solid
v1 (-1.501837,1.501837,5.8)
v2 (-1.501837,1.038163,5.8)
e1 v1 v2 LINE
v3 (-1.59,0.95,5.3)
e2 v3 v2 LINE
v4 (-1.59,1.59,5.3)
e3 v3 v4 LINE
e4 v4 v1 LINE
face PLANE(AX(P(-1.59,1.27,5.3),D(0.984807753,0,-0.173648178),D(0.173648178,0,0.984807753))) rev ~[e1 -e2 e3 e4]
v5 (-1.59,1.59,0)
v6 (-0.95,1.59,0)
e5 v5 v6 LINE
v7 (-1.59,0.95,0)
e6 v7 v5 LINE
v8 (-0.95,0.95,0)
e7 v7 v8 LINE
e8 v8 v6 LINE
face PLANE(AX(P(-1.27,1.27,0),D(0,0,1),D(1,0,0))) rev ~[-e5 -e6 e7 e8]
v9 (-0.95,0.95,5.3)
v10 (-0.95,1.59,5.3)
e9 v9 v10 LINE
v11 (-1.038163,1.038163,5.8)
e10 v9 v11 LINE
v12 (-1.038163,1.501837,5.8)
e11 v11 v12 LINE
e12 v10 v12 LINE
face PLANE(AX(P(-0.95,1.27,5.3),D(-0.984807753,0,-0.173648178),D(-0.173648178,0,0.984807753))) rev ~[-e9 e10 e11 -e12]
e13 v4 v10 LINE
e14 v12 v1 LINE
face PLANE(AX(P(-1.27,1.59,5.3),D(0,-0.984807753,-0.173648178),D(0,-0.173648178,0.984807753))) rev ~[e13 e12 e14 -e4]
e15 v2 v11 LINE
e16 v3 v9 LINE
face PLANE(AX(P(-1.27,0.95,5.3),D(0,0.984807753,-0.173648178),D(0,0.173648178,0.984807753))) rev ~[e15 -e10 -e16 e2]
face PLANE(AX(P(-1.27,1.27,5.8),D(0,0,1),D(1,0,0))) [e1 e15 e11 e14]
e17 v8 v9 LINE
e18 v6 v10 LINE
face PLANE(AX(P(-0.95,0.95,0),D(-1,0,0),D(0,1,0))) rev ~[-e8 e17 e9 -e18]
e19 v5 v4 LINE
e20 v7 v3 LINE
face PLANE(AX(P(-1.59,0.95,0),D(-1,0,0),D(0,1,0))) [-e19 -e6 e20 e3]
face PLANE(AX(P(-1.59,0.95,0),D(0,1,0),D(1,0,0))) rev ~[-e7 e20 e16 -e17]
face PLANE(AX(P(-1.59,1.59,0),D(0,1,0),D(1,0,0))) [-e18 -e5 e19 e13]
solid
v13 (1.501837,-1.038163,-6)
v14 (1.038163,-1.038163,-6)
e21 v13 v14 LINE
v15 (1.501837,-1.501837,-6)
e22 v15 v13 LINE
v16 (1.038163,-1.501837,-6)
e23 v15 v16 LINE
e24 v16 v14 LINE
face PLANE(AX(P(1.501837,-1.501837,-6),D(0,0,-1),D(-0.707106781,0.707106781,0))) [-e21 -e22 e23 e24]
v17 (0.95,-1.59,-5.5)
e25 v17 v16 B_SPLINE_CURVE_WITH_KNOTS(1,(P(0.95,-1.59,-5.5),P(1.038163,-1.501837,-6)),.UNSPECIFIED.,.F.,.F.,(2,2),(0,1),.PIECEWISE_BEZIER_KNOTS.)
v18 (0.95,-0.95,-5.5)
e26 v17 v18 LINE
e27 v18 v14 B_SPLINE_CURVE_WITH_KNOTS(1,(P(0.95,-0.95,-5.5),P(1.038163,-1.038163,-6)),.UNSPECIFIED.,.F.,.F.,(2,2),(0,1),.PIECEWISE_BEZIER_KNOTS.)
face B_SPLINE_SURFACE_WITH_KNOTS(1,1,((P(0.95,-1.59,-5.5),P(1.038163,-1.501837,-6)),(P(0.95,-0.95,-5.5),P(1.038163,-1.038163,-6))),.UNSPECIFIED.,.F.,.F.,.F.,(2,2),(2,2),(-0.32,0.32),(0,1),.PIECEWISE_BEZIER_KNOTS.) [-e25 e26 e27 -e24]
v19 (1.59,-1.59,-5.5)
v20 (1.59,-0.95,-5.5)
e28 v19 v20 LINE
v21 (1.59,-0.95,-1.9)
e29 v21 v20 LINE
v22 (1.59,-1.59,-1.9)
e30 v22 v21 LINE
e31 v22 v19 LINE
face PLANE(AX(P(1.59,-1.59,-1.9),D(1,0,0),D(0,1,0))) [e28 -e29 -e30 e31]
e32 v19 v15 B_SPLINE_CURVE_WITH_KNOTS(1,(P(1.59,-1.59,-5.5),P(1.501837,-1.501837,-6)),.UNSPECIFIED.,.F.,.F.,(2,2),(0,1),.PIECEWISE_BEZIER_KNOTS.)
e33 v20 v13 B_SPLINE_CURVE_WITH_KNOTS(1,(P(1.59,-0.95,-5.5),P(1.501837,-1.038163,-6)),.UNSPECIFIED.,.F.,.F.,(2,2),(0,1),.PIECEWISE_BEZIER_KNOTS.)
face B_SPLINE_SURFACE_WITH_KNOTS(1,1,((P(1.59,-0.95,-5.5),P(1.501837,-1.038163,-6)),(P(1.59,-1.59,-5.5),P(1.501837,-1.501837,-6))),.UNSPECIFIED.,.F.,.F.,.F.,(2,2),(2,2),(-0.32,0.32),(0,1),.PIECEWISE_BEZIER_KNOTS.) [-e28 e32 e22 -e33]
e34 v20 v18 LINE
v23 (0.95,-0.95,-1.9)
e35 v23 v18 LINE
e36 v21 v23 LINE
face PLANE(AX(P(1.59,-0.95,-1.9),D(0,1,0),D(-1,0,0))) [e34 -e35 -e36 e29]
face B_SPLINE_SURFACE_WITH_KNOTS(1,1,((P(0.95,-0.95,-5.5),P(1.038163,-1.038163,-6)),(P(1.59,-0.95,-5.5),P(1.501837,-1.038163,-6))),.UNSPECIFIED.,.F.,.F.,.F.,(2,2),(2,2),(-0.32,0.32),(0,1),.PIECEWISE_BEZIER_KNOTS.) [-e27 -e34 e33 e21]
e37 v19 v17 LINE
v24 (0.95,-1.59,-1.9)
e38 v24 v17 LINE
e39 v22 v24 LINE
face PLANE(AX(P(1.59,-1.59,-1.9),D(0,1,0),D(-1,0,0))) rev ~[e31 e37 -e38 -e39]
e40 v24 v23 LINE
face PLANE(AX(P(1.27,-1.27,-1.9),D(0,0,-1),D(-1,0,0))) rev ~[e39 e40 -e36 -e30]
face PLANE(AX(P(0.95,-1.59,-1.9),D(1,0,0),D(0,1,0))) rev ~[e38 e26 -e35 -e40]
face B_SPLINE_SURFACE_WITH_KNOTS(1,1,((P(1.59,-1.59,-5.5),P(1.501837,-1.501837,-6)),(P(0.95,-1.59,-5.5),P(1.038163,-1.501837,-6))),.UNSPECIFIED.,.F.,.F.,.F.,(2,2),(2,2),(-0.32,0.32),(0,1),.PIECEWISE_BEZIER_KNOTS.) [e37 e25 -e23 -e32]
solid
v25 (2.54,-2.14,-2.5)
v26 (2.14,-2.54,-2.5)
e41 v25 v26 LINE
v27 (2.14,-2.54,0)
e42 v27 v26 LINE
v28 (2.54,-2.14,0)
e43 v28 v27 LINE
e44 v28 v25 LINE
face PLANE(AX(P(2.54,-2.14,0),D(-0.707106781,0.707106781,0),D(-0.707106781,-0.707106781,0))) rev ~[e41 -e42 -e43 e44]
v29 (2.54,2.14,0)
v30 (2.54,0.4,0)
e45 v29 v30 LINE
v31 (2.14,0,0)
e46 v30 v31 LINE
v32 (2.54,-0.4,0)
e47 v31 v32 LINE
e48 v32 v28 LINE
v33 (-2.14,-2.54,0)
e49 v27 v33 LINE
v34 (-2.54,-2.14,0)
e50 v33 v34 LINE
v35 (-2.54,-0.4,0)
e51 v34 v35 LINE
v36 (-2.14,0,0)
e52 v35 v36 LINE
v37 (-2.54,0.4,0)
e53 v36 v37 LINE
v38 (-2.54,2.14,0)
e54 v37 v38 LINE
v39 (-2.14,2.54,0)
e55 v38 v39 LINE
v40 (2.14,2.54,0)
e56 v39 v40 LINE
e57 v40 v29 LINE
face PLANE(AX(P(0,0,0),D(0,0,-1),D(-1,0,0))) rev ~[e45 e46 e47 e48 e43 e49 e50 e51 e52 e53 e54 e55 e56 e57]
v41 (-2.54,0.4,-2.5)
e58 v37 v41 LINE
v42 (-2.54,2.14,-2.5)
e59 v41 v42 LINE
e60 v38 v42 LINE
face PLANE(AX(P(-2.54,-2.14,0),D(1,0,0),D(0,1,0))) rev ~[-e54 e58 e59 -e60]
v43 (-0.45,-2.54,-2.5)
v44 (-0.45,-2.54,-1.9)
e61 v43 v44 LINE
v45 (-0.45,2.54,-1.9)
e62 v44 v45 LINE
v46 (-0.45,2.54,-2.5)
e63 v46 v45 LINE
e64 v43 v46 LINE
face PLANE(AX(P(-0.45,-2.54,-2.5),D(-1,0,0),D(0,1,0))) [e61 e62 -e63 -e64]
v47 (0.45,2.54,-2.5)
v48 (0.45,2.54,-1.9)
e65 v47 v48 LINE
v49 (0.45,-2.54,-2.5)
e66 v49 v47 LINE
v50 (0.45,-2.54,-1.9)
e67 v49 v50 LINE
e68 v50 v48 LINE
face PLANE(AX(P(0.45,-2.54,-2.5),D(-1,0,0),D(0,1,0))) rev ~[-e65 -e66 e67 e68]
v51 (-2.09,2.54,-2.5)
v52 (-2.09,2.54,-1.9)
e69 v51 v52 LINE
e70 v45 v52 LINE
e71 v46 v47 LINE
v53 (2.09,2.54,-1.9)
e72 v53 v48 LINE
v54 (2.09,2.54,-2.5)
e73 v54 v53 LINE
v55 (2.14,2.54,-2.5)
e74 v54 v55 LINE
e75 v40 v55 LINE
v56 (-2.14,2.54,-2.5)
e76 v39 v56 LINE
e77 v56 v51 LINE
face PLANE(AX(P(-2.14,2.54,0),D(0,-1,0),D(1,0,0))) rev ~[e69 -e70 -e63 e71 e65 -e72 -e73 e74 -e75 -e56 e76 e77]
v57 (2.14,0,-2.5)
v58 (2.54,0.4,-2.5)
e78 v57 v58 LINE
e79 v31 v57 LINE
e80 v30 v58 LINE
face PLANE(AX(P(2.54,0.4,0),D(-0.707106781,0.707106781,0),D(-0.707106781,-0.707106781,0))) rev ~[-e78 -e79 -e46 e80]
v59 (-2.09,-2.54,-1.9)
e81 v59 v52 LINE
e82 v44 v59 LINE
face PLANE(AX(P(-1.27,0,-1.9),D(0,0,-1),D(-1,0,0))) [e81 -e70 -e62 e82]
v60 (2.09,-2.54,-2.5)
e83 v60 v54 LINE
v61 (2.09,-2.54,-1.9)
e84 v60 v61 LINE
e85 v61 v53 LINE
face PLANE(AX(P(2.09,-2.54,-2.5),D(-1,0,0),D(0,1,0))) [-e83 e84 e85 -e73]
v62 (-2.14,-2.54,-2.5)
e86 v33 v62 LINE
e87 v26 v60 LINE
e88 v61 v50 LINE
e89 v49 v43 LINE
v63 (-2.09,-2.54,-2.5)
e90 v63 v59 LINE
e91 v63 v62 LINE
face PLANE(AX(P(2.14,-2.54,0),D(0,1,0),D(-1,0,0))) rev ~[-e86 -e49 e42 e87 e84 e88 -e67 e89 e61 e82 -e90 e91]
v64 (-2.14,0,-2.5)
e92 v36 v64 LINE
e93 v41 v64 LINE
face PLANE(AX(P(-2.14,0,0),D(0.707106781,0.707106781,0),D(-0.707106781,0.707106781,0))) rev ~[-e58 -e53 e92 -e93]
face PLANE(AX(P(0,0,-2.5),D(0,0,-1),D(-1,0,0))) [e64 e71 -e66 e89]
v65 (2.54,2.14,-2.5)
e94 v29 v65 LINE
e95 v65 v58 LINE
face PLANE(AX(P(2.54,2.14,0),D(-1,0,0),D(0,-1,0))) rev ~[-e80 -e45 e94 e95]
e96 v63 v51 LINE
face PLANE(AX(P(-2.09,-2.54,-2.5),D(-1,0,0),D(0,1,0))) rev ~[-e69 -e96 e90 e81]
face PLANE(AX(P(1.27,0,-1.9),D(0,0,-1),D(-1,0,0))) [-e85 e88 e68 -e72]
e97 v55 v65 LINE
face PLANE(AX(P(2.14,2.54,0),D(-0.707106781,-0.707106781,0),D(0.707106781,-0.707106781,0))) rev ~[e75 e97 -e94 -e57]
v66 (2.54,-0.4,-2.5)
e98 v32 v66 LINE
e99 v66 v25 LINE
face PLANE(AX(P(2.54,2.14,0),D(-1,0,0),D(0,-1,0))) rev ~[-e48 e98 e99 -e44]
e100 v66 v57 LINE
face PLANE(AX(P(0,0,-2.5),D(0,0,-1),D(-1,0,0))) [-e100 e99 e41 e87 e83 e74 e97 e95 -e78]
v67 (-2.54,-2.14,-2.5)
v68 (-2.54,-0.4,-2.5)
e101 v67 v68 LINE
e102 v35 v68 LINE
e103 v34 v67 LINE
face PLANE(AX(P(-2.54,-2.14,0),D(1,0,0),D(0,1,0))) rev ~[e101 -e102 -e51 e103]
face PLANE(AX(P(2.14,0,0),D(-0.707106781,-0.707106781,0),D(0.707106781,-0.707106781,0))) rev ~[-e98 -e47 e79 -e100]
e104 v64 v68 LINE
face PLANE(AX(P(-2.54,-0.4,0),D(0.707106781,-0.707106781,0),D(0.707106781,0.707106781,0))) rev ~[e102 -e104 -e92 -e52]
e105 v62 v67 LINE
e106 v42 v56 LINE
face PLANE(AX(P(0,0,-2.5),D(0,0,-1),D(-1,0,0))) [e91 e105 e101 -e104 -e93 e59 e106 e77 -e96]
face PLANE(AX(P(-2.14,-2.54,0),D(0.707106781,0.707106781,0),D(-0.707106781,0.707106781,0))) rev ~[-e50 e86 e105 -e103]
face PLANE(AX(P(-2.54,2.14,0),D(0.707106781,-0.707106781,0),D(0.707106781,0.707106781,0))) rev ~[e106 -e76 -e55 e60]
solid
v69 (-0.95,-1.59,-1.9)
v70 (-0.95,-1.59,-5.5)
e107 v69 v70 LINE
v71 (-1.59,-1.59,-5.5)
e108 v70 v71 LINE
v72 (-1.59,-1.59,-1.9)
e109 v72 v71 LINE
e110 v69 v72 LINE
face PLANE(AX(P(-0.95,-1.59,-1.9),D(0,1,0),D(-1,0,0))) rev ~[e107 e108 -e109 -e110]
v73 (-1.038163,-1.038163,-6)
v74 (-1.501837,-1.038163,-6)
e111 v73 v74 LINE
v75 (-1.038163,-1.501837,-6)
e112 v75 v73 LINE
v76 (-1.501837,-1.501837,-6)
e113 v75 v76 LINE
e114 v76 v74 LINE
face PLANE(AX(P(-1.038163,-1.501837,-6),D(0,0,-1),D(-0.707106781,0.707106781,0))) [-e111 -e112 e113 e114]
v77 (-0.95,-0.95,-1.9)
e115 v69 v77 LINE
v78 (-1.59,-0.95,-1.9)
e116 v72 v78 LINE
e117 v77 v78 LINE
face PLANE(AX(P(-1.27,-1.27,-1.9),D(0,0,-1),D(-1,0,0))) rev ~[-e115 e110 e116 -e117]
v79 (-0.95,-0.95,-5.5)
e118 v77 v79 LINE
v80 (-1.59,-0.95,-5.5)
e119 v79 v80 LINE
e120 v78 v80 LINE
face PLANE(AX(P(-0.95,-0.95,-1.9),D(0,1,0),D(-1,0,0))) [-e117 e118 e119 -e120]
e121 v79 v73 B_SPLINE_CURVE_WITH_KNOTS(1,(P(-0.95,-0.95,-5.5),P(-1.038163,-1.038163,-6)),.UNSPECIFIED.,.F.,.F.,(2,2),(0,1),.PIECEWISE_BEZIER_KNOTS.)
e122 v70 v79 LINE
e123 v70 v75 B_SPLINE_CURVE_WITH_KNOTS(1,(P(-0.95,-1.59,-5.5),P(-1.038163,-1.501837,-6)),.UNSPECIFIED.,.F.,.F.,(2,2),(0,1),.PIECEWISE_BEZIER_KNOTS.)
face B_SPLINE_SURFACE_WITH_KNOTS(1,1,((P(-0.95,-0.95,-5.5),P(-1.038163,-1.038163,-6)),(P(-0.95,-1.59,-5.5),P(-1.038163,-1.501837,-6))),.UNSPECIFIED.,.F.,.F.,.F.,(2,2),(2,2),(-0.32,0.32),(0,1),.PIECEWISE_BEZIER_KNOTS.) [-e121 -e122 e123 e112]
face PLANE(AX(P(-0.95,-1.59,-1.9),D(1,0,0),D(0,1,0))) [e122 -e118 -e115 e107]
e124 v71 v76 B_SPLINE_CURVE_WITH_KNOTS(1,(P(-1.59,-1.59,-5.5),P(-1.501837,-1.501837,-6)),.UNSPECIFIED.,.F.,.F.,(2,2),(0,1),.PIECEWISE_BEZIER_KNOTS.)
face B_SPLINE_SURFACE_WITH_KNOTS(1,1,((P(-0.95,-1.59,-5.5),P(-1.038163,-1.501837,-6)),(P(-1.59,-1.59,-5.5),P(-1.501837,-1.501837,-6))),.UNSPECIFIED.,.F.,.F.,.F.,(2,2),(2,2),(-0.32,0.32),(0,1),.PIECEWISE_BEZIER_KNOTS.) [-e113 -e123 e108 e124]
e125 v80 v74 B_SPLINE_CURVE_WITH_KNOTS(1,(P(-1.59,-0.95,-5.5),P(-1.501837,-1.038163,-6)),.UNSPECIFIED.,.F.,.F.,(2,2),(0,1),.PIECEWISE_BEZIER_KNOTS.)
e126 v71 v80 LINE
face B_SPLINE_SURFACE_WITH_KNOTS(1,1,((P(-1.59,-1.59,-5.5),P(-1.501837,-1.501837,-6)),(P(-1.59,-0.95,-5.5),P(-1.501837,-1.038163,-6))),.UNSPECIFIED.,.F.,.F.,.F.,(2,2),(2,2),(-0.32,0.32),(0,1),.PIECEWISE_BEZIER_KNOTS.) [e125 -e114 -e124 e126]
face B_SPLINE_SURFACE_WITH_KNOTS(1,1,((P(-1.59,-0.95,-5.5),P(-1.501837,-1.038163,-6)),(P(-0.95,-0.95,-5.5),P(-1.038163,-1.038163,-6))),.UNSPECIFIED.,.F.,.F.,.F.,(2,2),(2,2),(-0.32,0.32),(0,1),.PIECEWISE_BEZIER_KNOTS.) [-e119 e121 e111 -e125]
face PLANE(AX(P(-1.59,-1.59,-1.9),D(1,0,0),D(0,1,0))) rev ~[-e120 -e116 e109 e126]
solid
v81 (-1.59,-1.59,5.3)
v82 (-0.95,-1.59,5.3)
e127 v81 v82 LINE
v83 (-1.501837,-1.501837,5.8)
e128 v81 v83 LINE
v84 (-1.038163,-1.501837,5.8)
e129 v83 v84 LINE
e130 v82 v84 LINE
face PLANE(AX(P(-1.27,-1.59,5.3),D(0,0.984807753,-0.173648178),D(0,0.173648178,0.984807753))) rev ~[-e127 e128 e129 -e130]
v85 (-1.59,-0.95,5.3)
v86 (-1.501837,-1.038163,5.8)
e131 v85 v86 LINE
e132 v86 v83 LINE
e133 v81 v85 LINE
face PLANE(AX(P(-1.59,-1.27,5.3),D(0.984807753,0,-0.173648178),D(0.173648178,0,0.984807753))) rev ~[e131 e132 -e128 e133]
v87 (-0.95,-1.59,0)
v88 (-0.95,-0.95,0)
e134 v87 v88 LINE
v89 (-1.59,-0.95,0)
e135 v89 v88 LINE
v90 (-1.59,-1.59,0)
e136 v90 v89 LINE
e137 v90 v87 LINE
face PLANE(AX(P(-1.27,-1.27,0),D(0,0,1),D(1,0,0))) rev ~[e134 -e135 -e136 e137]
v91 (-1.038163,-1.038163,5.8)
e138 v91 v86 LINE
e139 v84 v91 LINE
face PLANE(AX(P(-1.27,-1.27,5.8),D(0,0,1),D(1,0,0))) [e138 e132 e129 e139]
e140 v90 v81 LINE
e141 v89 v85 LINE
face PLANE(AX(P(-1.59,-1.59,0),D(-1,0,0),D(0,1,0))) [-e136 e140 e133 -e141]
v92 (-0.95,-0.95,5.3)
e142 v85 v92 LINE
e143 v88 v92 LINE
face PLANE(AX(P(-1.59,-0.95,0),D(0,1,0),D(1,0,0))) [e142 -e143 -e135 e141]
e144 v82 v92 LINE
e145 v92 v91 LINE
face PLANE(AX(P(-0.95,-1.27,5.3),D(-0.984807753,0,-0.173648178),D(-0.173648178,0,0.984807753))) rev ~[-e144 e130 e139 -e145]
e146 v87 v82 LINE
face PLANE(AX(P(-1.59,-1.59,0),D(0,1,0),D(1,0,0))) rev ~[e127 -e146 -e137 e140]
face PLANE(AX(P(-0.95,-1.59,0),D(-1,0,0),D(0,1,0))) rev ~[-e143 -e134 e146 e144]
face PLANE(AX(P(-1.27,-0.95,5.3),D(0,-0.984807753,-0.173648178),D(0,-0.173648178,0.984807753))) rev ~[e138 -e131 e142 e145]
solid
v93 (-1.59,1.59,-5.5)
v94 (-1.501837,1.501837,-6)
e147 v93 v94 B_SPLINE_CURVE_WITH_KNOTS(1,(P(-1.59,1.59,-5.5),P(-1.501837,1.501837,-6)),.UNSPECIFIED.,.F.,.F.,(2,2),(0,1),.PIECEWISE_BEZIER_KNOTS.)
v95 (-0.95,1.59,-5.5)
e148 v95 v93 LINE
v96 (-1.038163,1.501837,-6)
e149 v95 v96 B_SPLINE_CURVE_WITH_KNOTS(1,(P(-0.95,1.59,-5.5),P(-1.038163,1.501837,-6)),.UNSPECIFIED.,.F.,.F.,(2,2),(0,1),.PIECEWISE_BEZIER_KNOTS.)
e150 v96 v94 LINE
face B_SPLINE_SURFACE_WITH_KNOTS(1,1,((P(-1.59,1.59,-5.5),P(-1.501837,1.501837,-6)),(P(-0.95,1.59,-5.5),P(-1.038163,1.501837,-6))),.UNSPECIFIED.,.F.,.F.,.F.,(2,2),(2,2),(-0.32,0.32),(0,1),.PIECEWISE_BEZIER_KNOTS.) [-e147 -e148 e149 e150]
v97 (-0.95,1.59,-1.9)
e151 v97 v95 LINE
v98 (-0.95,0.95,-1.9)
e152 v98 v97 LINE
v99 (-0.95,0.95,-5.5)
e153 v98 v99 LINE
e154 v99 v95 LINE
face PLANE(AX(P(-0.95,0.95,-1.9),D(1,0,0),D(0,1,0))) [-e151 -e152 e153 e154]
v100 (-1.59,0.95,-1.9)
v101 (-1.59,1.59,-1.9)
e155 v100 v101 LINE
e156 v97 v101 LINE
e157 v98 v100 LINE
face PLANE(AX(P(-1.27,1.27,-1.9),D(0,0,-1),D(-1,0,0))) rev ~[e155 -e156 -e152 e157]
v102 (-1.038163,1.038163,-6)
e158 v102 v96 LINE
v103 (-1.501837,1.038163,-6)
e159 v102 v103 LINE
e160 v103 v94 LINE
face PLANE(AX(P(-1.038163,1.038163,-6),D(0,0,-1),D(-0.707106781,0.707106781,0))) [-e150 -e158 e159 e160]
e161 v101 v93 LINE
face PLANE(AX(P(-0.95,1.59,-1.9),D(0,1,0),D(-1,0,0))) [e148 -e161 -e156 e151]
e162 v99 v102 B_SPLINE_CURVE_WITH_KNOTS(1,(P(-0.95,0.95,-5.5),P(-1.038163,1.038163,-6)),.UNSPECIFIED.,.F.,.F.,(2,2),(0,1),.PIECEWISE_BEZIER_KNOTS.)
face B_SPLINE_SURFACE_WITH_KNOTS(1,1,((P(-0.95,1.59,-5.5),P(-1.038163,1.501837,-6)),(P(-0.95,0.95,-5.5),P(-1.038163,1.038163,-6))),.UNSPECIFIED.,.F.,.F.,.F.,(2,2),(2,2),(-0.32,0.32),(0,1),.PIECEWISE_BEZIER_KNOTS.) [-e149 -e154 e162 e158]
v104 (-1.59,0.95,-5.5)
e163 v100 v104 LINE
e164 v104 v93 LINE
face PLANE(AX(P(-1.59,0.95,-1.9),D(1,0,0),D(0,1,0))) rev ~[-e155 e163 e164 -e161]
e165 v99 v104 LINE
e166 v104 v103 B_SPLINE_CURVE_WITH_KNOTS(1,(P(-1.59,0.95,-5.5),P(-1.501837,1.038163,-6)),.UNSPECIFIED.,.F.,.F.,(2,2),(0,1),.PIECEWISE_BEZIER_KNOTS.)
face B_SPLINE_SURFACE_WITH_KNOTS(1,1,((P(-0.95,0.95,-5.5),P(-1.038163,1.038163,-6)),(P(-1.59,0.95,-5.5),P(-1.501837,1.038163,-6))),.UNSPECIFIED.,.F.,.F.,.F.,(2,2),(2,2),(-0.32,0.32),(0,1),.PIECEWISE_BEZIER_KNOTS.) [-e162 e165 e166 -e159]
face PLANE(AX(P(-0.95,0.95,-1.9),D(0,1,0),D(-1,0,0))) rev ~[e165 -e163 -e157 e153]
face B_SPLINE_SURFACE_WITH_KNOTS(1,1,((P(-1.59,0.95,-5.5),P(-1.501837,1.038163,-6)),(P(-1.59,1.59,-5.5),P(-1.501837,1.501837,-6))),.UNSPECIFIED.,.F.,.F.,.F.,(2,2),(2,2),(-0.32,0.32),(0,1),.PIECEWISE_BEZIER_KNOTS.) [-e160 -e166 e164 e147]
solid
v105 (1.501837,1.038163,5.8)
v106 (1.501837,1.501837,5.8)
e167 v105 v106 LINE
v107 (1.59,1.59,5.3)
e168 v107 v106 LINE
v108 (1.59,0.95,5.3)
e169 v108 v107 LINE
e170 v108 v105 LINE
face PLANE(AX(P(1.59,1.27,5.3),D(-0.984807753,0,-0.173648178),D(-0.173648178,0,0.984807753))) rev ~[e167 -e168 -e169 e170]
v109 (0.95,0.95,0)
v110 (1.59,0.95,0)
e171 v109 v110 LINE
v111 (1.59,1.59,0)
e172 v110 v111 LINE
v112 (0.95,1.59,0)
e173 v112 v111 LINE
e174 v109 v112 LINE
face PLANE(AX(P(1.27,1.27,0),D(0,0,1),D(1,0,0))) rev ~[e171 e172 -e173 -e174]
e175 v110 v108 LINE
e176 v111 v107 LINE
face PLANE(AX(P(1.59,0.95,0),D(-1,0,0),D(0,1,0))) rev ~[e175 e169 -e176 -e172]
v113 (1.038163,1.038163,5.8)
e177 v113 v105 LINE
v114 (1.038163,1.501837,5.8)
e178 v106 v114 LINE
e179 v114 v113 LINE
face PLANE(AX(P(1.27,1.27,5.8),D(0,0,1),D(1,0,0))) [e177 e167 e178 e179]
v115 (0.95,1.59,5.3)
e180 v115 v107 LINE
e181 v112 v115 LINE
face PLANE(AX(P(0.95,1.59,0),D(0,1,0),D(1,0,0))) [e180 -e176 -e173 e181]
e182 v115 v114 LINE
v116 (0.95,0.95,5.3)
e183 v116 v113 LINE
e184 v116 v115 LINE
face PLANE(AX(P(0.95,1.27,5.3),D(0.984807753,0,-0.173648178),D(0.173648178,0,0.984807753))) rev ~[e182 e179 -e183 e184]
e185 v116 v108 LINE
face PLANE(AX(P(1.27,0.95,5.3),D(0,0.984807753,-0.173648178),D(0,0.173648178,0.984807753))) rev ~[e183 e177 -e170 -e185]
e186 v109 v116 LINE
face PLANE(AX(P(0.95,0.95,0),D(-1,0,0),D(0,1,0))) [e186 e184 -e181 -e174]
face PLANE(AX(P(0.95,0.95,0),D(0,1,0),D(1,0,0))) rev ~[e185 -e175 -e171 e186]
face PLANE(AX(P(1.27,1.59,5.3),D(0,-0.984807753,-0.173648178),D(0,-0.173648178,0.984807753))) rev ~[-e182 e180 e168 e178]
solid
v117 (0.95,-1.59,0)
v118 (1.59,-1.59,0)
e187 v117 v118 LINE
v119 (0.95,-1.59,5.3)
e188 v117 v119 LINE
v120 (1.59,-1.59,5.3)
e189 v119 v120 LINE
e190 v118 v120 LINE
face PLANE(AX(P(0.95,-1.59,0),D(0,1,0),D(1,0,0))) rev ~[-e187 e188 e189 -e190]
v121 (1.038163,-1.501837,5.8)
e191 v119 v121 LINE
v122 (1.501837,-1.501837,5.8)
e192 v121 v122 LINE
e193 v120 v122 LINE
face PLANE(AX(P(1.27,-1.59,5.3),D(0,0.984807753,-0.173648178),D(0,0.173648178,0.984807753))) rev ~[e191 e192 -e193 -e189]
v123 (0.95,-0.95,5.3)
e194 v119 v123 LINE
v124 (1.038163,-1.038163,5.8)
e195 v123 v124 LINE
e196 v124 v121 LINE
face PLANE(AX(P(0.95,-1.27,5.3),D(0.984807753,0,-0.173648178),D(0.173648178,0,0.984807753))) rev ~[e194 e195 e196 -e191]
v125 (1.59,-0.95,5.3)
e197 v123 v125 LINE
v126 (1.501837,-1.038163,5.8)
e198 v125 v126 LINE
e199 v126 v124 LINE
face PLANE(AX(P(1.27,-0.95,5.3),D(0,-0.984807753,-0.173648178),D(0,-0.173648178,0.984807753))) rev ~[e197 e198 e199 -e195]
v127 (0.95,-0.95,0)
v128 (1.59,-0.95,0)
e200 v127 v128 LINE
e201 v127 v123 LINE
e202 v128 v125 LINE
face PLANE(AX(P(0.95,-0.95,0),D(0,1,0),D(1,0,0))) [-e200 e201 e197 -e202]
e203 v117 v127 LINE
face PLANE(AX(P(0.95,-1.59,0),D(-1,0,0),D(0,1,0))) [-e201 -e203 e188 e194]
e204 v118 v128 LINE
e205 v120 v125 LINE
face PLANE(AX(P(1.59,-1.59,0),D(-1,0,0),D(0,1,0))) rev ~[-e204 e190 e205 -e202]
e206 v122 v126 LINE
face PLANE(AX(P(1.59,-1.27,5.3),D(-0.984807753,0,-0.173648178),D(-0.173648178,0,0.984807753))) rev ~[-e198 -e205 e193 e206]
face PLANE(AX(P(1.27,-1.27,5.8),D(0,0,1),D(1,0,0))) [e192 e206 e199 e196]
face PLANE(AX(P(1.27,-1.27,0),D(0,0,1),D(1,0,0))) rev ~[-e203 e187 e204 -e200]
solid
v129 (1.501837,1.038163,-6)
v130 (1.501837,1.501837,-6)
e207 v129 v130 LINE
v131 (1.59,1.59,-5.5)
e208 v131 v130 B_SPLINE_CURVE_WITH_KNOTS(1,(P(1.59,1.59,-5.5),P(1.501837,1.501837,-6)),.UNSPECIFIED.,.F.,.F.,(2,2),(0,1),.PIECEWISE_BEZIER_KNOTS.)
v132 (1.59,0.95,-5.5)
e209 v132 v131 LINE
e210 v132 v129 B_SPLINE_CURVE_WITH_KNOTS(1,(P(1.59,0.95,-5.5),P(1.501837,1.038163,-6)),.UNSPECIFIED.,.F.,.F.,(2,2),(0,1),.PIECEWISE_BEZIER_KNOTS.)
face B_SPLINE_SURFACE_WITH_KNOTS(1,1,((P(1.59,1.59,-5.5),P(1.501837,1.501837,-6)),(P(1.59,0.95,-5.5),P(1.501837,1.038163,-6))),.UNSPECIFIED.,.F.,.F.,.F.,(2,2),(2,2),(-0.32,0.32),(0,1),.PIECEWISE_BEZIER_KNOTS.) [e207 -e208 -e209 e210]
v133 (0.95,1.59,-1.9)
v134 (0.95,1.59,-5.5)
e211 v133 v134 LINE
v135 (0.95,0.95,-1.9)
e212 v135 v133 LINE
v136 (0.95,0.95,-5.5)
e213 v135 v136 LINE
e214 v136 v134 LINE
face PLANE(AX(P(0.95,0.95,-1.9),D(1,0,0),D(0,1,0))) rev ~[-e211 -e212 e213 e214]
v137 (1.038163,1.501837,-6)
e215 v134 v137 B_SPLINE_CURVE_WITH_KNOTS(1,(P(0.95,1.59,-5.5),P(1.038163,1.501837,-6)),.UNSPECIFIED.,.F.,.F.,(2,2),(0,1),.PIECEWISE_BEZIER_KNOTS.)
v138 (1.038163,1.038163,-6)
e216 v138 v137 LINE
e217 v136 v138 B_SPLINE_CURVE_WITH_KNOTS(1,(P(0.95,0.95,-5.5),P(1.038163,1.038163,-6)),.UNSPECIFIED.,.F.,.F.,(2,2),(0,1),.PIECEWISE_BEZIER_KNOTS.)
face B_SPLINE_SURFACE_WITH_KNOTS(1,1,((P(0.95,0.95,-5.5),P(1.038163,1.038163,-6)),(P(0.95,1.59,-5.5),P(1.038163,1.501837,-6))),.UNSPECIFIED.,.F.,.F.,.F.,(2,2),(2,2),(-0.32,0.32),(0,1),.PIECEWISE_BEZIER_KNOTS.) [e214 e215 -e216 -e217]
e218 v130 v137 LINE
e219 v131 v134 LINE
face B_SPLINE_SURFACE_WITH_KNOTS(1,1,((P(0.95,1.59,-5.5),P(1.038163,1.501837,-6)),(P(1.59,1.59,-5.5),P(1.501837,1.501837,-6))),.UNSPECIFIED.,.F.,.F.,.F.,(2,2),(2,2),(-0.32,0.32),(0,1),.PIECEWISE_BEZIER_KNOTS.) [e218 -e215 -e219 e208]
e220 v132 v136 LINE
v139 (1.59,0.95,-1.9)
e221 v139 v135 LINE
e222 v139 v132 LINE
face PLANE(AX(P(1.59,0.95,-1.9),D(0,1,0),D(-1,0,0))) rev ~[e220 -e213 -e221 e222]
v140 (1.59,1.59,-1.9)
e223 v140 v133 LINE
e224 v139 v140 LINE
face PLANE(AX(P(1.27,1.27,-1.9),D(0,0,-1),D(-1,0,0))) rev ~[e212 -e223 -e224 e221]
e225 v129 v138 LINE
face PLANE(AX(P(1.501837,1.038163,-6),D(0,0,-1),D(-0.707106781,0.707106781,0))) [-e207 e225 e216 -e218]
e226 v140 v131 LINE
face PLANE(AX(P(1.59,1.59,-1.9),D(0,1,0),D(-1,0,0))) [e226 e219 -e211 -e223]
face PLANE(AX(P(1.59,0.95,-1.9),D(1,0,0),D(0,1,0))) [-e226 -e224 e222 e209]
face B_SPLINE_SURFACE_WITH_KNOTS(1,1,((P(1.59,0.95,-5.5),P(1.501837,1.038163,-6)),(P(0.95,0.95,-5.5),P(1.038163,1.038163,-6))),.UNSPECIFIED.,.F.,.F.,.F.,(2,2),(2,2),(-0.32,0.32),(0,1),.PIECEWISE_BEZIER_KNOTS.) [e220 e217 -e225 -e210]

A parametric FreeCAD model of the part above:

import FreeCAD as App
import Part
import Sketcher
from FreeCAD import Vector

doc = App.newDocument("Part")
body = doc.addObject("PartDesign::Body", "Body")

# Sketch on XY plane
sketch1 = body.newObject("Sketcher::SketchObject", "Sketch")
sketch1.AttachmentSupport = (doc.getObject("XY_Plane"), [""])
sketch1.MapMode = "FlatFace"
sketch1.addGeometry([
    Part.LineSegment(Vector(-1.6, 1.6, 0), Vector(-1.6, 0.9, 0)),
    Part.LineSegment(Vector(-1.6, 0.9, 0), Vector(-0.9, 0.9, 0)),
    Part.LineSegment(Vector(-0.9, 0.9, 0), Vector(-0.9, 1.6, 0)),
    Part.LineSegment(Vector(-0.9, 1.6, 0), Vector(-1.6, 1.6, 0)),
], False)
sketch1.addConstraint([
    Sketcher.Constraint("Coincident", 0, 2, 1, 1),
    Sketcher.Constraint("Coincident", 1, 2, 2, 1),
    Sketcher.Constraint("Coincident", 2, 2, 3, 1),
    Sketcher.Constraint("Coincident", 3, 2, 0, 1),
    Sketcher.Constraint("Vertical", 0),
    Sketcher.Constraint("Horizontal", 1),
    Sketcher.Constraint("Vertical", 2),
    Sketcher.Constraint("Horizontal", 3),
    Sketcher.Constraint("Equal", 3, 0),
    Sketcher.Constraint("DistanceX", 1, 1, 1, 2, 0.64),
    Sketcher.Constraint("DistanceX", 0, 2, -1, 1, 1.59),
    Sketcher.Constraint("DistanceY", -1, 1, 0, 2, 0.95),
])
pad1 = body.newObject("PartDesign::Pad", "Pad")
pad1.Profile = sketch1
pad1.Length = 5.3
body2 = doc.addObject("PartDesign::Body", "Body001")

# Sketch on XY plane
sketch2 = body2.newObject("Sketcher::SketchObject", "Sketch001")
sketch2.AttachmentSupport = (doc.getObject("XY_Plane001"), [""])
sketch2.MapMode = "FlatFace"
sketch2.addGeometry([
    Part.LineSegment(Vector(-1.6, -0.9, 0), Vector(-1.6, -1.6, 0)),
    Part.LineSegment(Vector(-1.6, -1.6, 0), Vector(-0.9, -1.6, 0)),
    Part.LineSegment(Vector(-0.9, -1.6, 0), Vector(-0.9, -0.9, 0)),
    Part.LineSegment(Vector(-0.9, -0.9, 0), Vector(-1.6, -0.9, 0)),
], False)
sketch2.addConstraint([
    Sketcher.Constraint("Coincident", 0, 2, 1, 1),
    Sketcher.Constraint("Coincident", 1, 2, 2, 1),
    Sketcher.Constraint("Coincident", 2, 2, 3, 1),
    Sketcher.Constraint("Coincident", 3, 2, 0, 1),
    Sketcher.Constraint("Vertical", 0),
    Sketcher.Constraint("Horizontal", 1),
    Sketcher.Constraint("Vertical", 2),
    Sketcher.Constraint("Horizontal", 3),
    Sketcher.Constraint("Equal", 3, 0),
    Sketcher.Constraint("DistanceX", 1, 1, 1, 2, 0.64),
    Sketcher.Constraint("DistanceX", 0, 2, -1, 1, 1.59),
    Sketcher.Constraint("DistanceY", 0, 2, -1, 1, 1.59),
])
pad2 = body2.newObject("PartDesign::Pad", "Pad001")
pad2.Profile = sketch2
pad2.Length = 5.3
body3 = doc.addObject("PartDesign::Body", "Body002")

# Sketch on XY plane
sketch3 = body3.newObject("Sketcher::SketchObject", "Sketch002")
sketch3.AttachmentSupport = (doc.getObject("XY_Plane002"), [""])
sketch3.MapMode = "FlatFace"
sketch3.addGeometry([
    Part.LineSegment(Vector(0.9, 1.6, 0), Vector(0.9, 0.9, 0)),
    Part.LineSegment(Vector(0.9, 0.9, 0), Vector(1.6, 0.9, 0)),
    Part.LineSegment(Vector(1.6, 0.9, 0), Vector(1.6, 1.6, 0)),
    Part.LineSegment(Vector(1.6, 1.6, 0), Vector(0.9, 1.6, 0)),
], False)
sketch3.addConstraint([
    Sketcher.Constraint("Coincident", 0, 2, 1, 1),
    Sketcher.Constraint("Coincident", 1, 2, 2, 1),
    Sketcher.Constraint("Coincident", 2, 2, 3, 1),
    Sketcher.Constraint("Coincident", 3, 2, 0, 1),
    Sketcher.Constraint("Vertical", 0),
    Sketcher.Constraint("Horizontal", 1),
    Sketcher.Constraint("Vertical", 2),
    Sketcher.Constraint("Horizontal", 3),
    Sketcher.Constraint("Equal", 3, 0),
    Sketcher.Constraint("DistanceX", 1, 1, 1, 2, 0.64),
    Sketcher.Constraint("DistanceX", -1, 1, 0, 2, 0.95),
    Sketcher.Constraint("DistanceY", -1, 1, 0, 2, 0.95),
])
pad3 = body3.newObject("PartDesign::Pad", "Pad002")
pad3.Profile = sketch3
pad3.Length = 5.3
body4 = doc.addObject("PartDesign::Body", "Body003")

# Sketch on XY plane
sketch4 = body4.newObject("Sketcher::SketchObject", "Sketch003")
sketch4.AttachmentSupport = (doc.getObject("XY_Plane003"), [""])
sketch4.MapMode = "FlatFace"
sketch4.addGeometry([
    Part.LineSegment(Vector(0.9, -0.9, 0), Vector(0.9, -1.6, 0)),
    Part.LineSegment(Vector(0.9, -1.6, 0), Vector(1.6, -1.6, 0)),
    Part.LineSegment(Vector(1.6, -1.6, 0), Vector(1.6, -0.9, 0)),
    Part.LineSegment(Vector(1.6, -0.9, 0), Vector(0.9, -0.9, 0)),
], False)
sketch4.addConstraint([
    Sketcher.Constraint("Coincident", 0, 2, 1, 1),
    Sketcher.Constraint("Coincident", 1, 2, 2, 1),
    Sketcher.Constraint("Coincident", 2, 2, 3, 1),
    Sketcher.Constraint("Coincident", 3, 2, 0, 1),
    Sketcher.Constraint("Vertical", 0),
    Sketcher.Constraint("Horizontal", 1),
    Sketcher.Constraint("Vertical", 2),
    Sketcher.Constraint("Horizontal", 3),
    Sketcher.Constraint("Equal", 3, 0),
    Sketcher.Constraint("DistanceX", 1, 1, 1, 2, 0.64),
    Sketcher.Constraint("DistanceX", -1, 1, 0, 2, 0.95),
    Sketcher.Constraint("DistanceY", 0, 2, -1, 1, 1.59),
])
pad4 = body4.newObject("PartDesign::Pad", "Pad003")
pad4.Profile = sketch4
pad4.Length = 5.3
body.AllowCompound = True
doc.recompute()

boolean = body.newObject("PartDesign::Boolean", "Boolean")
boolean.Type = "Fuse"
boolean.addObjects([body2])
doc.recompute()

boolean2 = body.newObject("PartDesign::Boolean", "Boolean001")
boolean2.Type = "Fuse"
boolean2.addObjects([body3])
doc.recompute()

boolean3 = body.newObject("PartDesign::Boolean", "Boolean002")
boolean3.Type = "Fuse"
boolean3.addObjects([body4])

# Sketch on XY plane
sketch5 = body.newObject("Sketcher::SketchObject", "Sketch004")
sketch5.AttachmentSupport = (doc.getObject("XY_Plane"), [""])
sketch5.MapMode = "FlatFace"
sketch5.AttachmentOffset = App.Placement(Vector(0, 0, 5.3), App.Rotation())
sketch5.addGeometry([
    Part.LineSegment(Vector(-1.6, -0.9, 0), Vector(-1.6, -1.6, 0)),  # 0
    Part.LineSegment(Vector(-1.6, -1.6, 0), Vector(-0.9, -1.6, 0)),  # 1
    Part.LineSegment(Vector(-0.9, -1.6, 0), Vector(-0.9, -0.9, 0)),  # 2
    Part.LineSegment(Vector(-0.9, -0.9, 0), Vector(-1.6, -0.9, 0)),  # 3
    Part.LineSegment(Vector(-1.6, 1.6, 0), Vector(-1.6, 0.9, 0)),  # 4
    Part.LineSegment(Vector(-1.6, 0.9, 0), Vector(-0.9, 0.9, 0)),  # 5
    Part.LineSegment(Vector(-0.9, 0.9, 0), Vector(-0.9, 1.6, 0)),  # 6
    Part.LineSegment(Vector(-0.9, 1.6, 0), Vector(-1.6, 1.6, 0)),  # 7
    Part.LineSegment(Vector(0.9, -0.9, 0), Vector(0.9, -1.6, 0)),  # 8
    Part.LineSegment(Vector(0.9, -1.6, 0), Vector(1.6, -1.6, 0)),  # 9
    Part.LineSegment(Vector(1.6, -1.6, 0), Vector(1.6, -0.9, 0)),  # 10
    Part.LineSegment(Vector(1.6, -0.9, 0), Vector(0.9, -0.9, 0)),  # 11
    Part.LineSegment(Vector(0.9, 1.6, 0), Vector(0.9, 0.9, 0)),  # 12
    Part.LineSegment(Vector(0.9, 0.9, 0), Vector(1.6, 0.9, 0)),  # 13
    Part.LineSegment(Vector(1.6, 0.9, 0), Vector(1.6, 1.6, 0)),  # 14
    Part.LineSegment(Vector(1.6, 1.6, 0), Vector(0.9, 1.6, 0)),  # 15
], False)
sketch5.addConstraint([
    Sketcher.Constraint("Coincident", 0, 2, 1, 1),
    Sketcher.Constraint("Coincident", 1, 2, 2, 1),
    Sketcher.Constraint("Coincident", 2, 2, 3, 1),
    Sketcher.Constraint("Coincident", 3, 2, 0, 1),
    Sketcher.Constraint("Coincident", 4, 2, 5, 1),
    Sketcher.Constraint("Coincident", 5, 2, 6, 1),
    Sketcher.Constraint("Coincident", 6, 2, 7, 1),
    Sketcher.Constraint("Coincident", 7, 2, 4, 1),
    Sketcher.Constraint("Coincident", 8, 2, 9, 1),
    Sketcher.Constraint("Coincident", 9, 2, 10, 1),
    Sketcher.Constraint("Coincident", 10, 2, 11, 1),
    Sketcher.Constraint("Coincident", 11, 2, 8, 1),
    Sketcher.Constraint("Coincident", 12, 2, 13, 1),
    Sketcher.Constraint("Coincident", 13, 2, 14, 1),
    Sketcher.Constraint("Coincident", 14, 2, 15, 1),
    Sketcher.Constraint("Coincident", 15, 2, 12, 1),
    Sketcher.Constraint("Vertical", 0),
    Sketcher.Constraint("Horizontal", 1),
    Sketcher.Constraint("Vertical", 2),
    Sketcher.Constraint("Horizontal", 3),
    Sketcher.Constraint("Vertical", 4),
    Sketcher.Constraint("Horizontal", 5),
    Sketcher.Constraint("Vertical", 6),
    Sketcher.Constraint("Horizontal", 7),
    Sketcher.Constraint("Vertical", 8),
    Sketcher.Constraint("Horizontal", 9),
    Sketcher.Constraint("Vertical", 10),
    Sketcher.Constraint("Horizontal", 11),
    Sketcher.Constraint("Vertical", 12),
    Sketcher.Constraint("Horizontal", 13),
    Sketcher.Constraint("Vertical", 14),
    Sketcher.Constraint("Horizontal", 15),
    Sketcher.Constraint("Symmetric", 6, 2, 8, 2, -1, 1),
    Sketcher.Constraint("Symmetric", 4, 2, 10, 2, -1, 1),
    Sketcher.Constraint("Symmetric", 2, 2, 12, 2, -1, 1),
    Sketcher.Constraint("Symmetric", 0, 2, 14, 2, -1, 1),
    Sketcher.Constraint("Symmetric", 1, 2, 8, 2, -2),
    Sketcher.Constraint("Symmetric", 3, 2, 10, 2, -2),
    Sketcher.Constraint("Equal", 15, 0),
    Sketcher.Constraint("DistanceX", 1, 1, 1, 2, 0.64),
    Sketcher.Constraint("DistanceY", 3, 2, 4, 2, 1.9),
    Sketcher.Constraint("DistanceX", 1, 2, 8, 2, 1.9),
])
pad5 = body.newObject("PartDesign::Pad", "Pad004")
pad5.Profile = sketch5
pad5.Length = 0.5
pad5.TaperAngle = -10
body5 = doc.addObject("PartDesign::Body", "Body004")

# Sketch on XY plane
sketch6 = body5.newObject("Sketcher::SketchObject", "Sketch005")
sketch6.AttachmentSupport = (doc.getObject("XY_Plane004"), [""])
sketch6.MapMode = "FlatFace"
sketch6.addGeometry([
    Part.LineSegment(Vector(2.1, 2.5, 0), Vector(-2.1, 2.5, 0)),  # 0
    Part.LineSegment(Vector(-2.1, 2.5, 0), Vector(-2.5, 2.1, 0)),  # 1
    Part.LineSegment(Vector(-2.5, 2.1, 0), Vector(-2.5, -2.1, 0)),  # 2
    Part.LineSegment(Vector(-2.5, -2.1, 0), Vector(-2.1, -2.5, 0)),  # 3
    Part.LineSegment(Vector(-2.1, -2.5, 0), Vector(2.1, -2.5, 0)),  # 4
    Part.LineSegment(Vector(2.1, -2.5, 0), Vector(2.5, -2.1, 0)),  # 5
    Part.LineSegment(Vector(2.5, -2.1, 0), Vector(2.5, 2.1, 0)),  # 6
    Part.LineSegment(Vector(2.5, 2.1, 0), Vector(2.1, 2.5, 0)),  # 7
], False)
sketch6.addConstraint([
    Sketcher.Constraint("Coincident", 0, 2, 1, 1),
    Sketcher.Constraint("Coincident", 1, 2, 2, 1),
    Sketcher.Constraint("Coincident", 2, 2, 3, 1),
    Sketcher.Constraint("Coincident", 3, 2, 4, 1),
    Sketcher.Constraint("Coincident", 4, 2, 5, 1),
    Sketcher.Constraint("Coincident", 5, 2, 6, 1),
    Sketcher.Constraint("Coincident", 6, 2, 7, 1),
    Sketcher.Constraint("Coincident", 7, 2, 0, 1),
    Sketcher.Constraint("Horizontal", 0),
    Sketcher.Constraint("Vertical", 2),
    Sketcher.Constraint("Horizontal", 4),
    Sketcher.Constraint("Vertical", 6),
    Sketcher.Constraint("Symmetric", 0, 2, 4, 2, -1, 1),
    Sketcher.Constraint("Symmetric", 1, 2, 5, 2, -1, 1),
    Sketcher.Constraint("Perpendicular", 1, 3),
    Sketcher.Constraint("Perpendicular", 5, 7),
    Sketcher.Constraint("Horizontal", 2, 2, 5, 2),
    Sketcher.Constraint("Horizontal", 1, 2, 6, 2),
    Sketcher.Constraint("Vertical", 0, 2, 3, 2),
    Sketcher.Constraint("Equal", 4, 2),
    Sketcher.Constraint("DistanceX", 0, 2, 0, 1, 4.28),
    Sketcher.Constraint("DistanceX", 1, 2, 0, 2, 0.4),
])
pad6 = body5.newObject("PartDesign::Pad", "Pad005")
pad6.Profile = sketch6
pad6.Length = 2.5
pad6.Reversed = True

# Sketch on XY plane
sketch7 = body5.newObject("Sketcher::SketchObject", "Sketch006")
sketch7.AttachmentSupport = (doc.getObject("XY_Plane004"), [""])
sketch7.MapMode = "FlatFace"
sketch7.AttachmentOffset = App.Placement(Vector(0, 0, -2.5), App.Rotation())
sketch7.addGeometry([
    Part.LineSegment(Vector(2.1, 2.5, 0), Vector(2.1, -2.5, 0)),  # 0
    Part.LineSegment(Vector(2.1, -2.5, 0), Vector(0.5, -2.5, 0)),  # 1
    Part.LineSegment(Vector(0.5, -2.5, 0), Vector(0.5, 2.5, 0)),  # 2
    Part.LineSegment(Vector(0.5, 2.5, 0), Vector(2.1, 2.5, 0)),  # 3
    Part.LineSegment(Vector(-0.5, 2.5, 0), Vector(-0.5, -2.5, 0)),  # 4
    Part.LineSegment(Vector(-0.5, -2.5, 0), Vector(-2.1, -2.5, 0)),  # 5
    Part.LineSegment(Vector(-2.1, -2.5, 0), Vector(-2.1, 2.5, 0)),  # 6
    Part.LineSegment(Vector(-2.1, 2.5, 0), Vector(-0.5, 2.5, 0)),  # 7
], False)
sketch7.addConstraint([
    Sketcher.Constraint("Coincident", 0, 2, 1, 1),
    Sketcher.Constraint("Coincident", 1, 2, 2, 1),
    Sketcher.Constraint("Coincident", 2, 2, 3, 1),
    Sketcher.Constraint("Coincident", 3, 2, 0, 1),
    Sketcher.Constraint("Coincident", 4, 2, 5, 1),
    Sketcher.Constraint("Coincident", 5, 2, 6, 1),
    Sketcher.Constraint("Coincident", 6, 2, 7, 1),
    Sketcher.Constraint("Coincident", 7, 2, 4, 1),
    Sketcher.Constraint("Vertical", 0),
    Sketcher.Constraint("Horizontal", 1),
    Sketcher.Constraint("Vertical", 2),
    Sketcher.Constraint("Horizontal", 3),
    Sketcher.Constraint("Vertical", 4),
    Sketcher.Constraint("Horizontal", 5),
    Sketcher.Constraint("Vertical", 6),
    Sketcher.Constraint("Horizontal", 7),
    Sketcher.Constraint("Symmetric", 2, 2, 4, 2, -1, 1),
    Sketcher.Constraint("Symmetric", 0, 2, 6, 2, -1, 1),
    Sketcher.Constraint("Horizontal", 1, 2, 4, 2),
    Sketcher.Constraint("DistanceX", 1, 2, 1, 1, 1.64),
    Sketcher.Constraint("DistanceY", 0, 2, 0, 1, 5.08),
    Sketcher.Constraint("DistanceX", 4, 2, 1, 2, 0.9),
])
pocket1 = body5.newObject("PartDesign::Pocket", "Pocket")
pocket1.Profile = sketch7
pocket1.Length = 0.6
pocket1.Reversed = True

# Sketch on XY plane
sketch8 = body5.newObject("Sketcher::SketchObject", "Sketch007")
sketch8.AttachmentSupport = (doc.getObject("XY_Plane004"), [""])
sketch8.MapMode = "FlatFace"
sketch8.addGeometry([
    Part.LineSegment(Vector(2.5, 0.4, 0), Vector(2.1, 0, 0)),  # 0
    Part.LineSegment(Vector(2.1, 0, 0), Vector(2.5, -0.4, 0)),  # 1
    Part.LineSegment(Vector(2.5, -0.4, 0), Vector(2.5, 0.4, 0)),  # 2
    Part.LineSegment(Vector(-2.5, -0.4, 0), Vector(-2.1, 0, 0)),  # 3
    Part.LineSegment(Vector(-2.1, 0, 0), Vector(-2.5, 0.4, 0)),  # 4
    Part.LineSegment(Vector(-2.5, 0.4, 0), Vector(-2.5, -0.4, 0)),  # 5
], False)
sketch8.addConstraint([
    Sketcher.Constraint("Coincident", 0, 2, 1, 1),
    Sketcher.Constraint("Coincident", 1, 2, 2, 1),
    Sketcher.Constraint("Coincident", 2, 2, 0, 1),
    Sketcher.Constraint("Coincident", 3, 2, 4, 1),
    Sketcher.Constraint("Coincident", 4, 2, 5, 1),
    Sketcher.Constraint("Coincident", 5, 2, 3, 1),
    Sketcher.Constraint("Vertical", 2),
    Sketcher.Constraint("Vertical", 5),
    Sketcher.Constraint("Symmetric", 0, 2, 3, 2, -1, 1),
    Sketcher.Constraint("Symmetric", 1, 2, 4, 2, -1, 1),
    Sketcher.Constraint("PointOnObject", 0, 2, -1),
    Sketcher.Constraint("Perpendicular", 0, 1),
    Sketcher.Constraint("Perpendicular", 1, 3),
    Sketcher.Constraint("Horizontal", 2, 2, 4, 2),
    Sketcher.Constraint("DistanceY", 2, 1, 2, 2, 0.8),
    Sketcher.Constraint("DistanceX", -1, 1, 0, 2, 2.14),
])
pocket2 = body5.newObject("PartDesign::Pocket", "Pocket001")
pocket2.Profile = sketch8
pocket2.Type = "ThroughAll"
body6 = doc.addObject("PartDesign::Body", "Body005")

# Sketch on XY plane
sketch9 = body6.newObject("Sketcher::SketchObject", "Sketch008")
sketch9.AttachmentSupport = (doc.getObject("XY_Plane005"), [""])
sketch9.MapMode = "FlatFace"
sketch9.AttachmentOffset = App.Placement(Vector(0, 0, -1.9), App.Rotation())
sketch9.addGeometry([
    Part.LineSegment(Vector(-0.9, -0.9, 0), Vector(-0.9, -1.6, 0)),
    Part.LineSegment(Vector(-0.9, -1.6, 0), Vector(-1.6, -1.6, 0)),
    Part.LineSegment(Vector(-1.6, -1.6, 0), Vector(-1.6, -0.9, 0)),
    Part.LineSegment(Vector(-1.6, -0.9, 0), Vector(-0.9, -0.9, 0)),
], False)
sketch9.addConstraint([
    Sketcher.Constraint("Coincident", 0, 2, 1, 1),
    Sketcher.Constraint("Coincident", 1, 2, 2, 1),
    Sketcher.Constraint("Coincident", 2, 2, 3, 1),
    Sketcher.Constraint("Coincident", 3, 2, 0, 1),
    Sketcher.Constraint("Vertical", 0),
    Sketcher.Constraint("Horizontal", 1),
    Sketcher.Constraint("Vertical", 2),
    Sketcher.Constraint("Horizontal", 3),
    Sketcher.Constraint("Equal", 3, 0),
    Sketcher.Constraint("DistanceX", 1, 2, 1, 1, 0.64),
    Sketcher.Constraint("DistanceX", 0, 2, -1, 1, 0.95),
    Sketcher.Constraint("DistanceY", 0, 2, -1, 1, 1.59),
])
pad7 = body6.newObject("PartDesign::Pad", "Pad006")
pad7.Profile = sketch9
pad7.Length = 3.6
pad7.Reversed = True
body7 = doc.addObject("PartDesign::Body", "Body006")

# Sketch on XY plane
sketch10 = body7.newObject("Sketcher::SketchObject", "Sketch009")
sketch10.AttachmentSupport = (doc.getObject("XY_Plane006"), [""])
sketch10.MapMode = "FlatFace"
sketch10.AttachmentOffset = App.Placement(Vector(0, 0, -1.9), App.Rotation())
sketch10.addGeometry([
    Part.LineSegment(Vector(-0.9, 1.6, 0), Vector(-0.9, 0.9, 0)),
    Part.LineSegment(Vector(-0.9, 0.9, 0), Vector(-1.6, 0.9, 0)),
    Part.LineSegment(Vector(-1.6, 0.9, 0), Vector(-1.6, 1.6, 0)),
    Part.LineSegment(Vector(-1.6, 1.6, 0), Vector(-0.9, 1.6, 0)),
], False)
sketch10.addConstraint([
    Sketcher.Constraint("Coincident", 0, 2, 1, 1),
    Sketcher.Constraint("Coincident", 1, 2, 2, 1),
    Sketcher.Constraint("Coincident", 2, 2, 3, 1),
    Sketcher.Constraint("Coincident", 3, 2, 0, 1),
    Sketcher.Constraint("Vertical", 0),
    Sketcher.Constraint("Horizontal", 1),
    Sketcher.Constraint("Vertical", 2),
    Sketcher.Constraint("Horizontal", 3),
    Sketcher.Constraint("Equal", 3, 0),
    Sketcher.Constraint("DistanceX", 1, 2, 1, 1, 0.64),
    Sketcher.Constraint("DistanceX", 0, 2, -1, 1, 0.95),
    Sketcher.Constraint("DistanceY", -1, 1, 0, 2, 0.95),
])
pad8 = body7.newObject("PartDesign::Pad", "Pad007")
pad8.Profile = sketch10
pad8.Length = 3.6
pad8.Reversed = True
body8 = doc.addObject("PartDesign::Body", "Body007")

# Sketch on XY plane
sketch11 = body8.newObject("Sketcher::SketchObject", "Sketch010")
sketch11.AttachmentSupport = (doc.getObject("XY_Plane007"), [""])
sketch11.MapMode = "FlatFace"
sketch11.AttachmentOffset = App.Placement(Vector(0, 0, -1.9), App.Rotation())
sketch11.addGeometry([
    Part.LineSegment(Vector(1.6, 1.6, 0), Vector(1.6, 0.9, 0)),
    Part.LineSegment(Vector(1.6, 0.9, 0), Vector(0.9, 0.9, 0)),
    Part.LineSegment(Vector(0.9, 0.9, 0), Vector(0.9, 1.6, 0)),
    Part.LineSegment(Vector(0.9, 1.6, 0), Vector(1.6, 1.6, 0)),
], False)
sketch11.addConstraint([
    Sketcher.Constraint("Coincident", 0, 2, 1, 1),
    Sketcher.Constraint("Coincident", 1, 2, 2, 1),
    Sketcher.Constraint("Coincident", 2, 2, 3, 1),
    Sketcher.Constraint("Coincident", 3, 2, 0, 1),
    Sketcher.Constraint("Vertical", 0),
    Sketcher.Constraint("Horizontal", 1),
    Sketcher.Constraint("Vertical", 2),
    Sketcher.Constraint("Horizontal", 3),
    Sketcher.Constraint("Equal", 3, 0),
    Sketcher.Constraint("DistanceX", 1, 2, 1, 1, 0.64),
    Sketcher.Constraint("DistanceX", -1, 1, 0, 2, 1.59),
    Sketcher.Constraint("DistanceY", -1, 1, 0, 2, 0.95),
])
pad9 = body8.newObject("PartDesign::Pad", "Pad008")
pad9.Profile = sketch11
pad9.Length = 3.6
pad9.Reversed = True
body9 = doc.addObject("PartDesign::Body", "Body008")

# Sketch on XY plane
sketch12 = body9.newObject("Sketcher::SketchObject", "Sketch011")
sketch12.AttachmentSupport = (doc.getObject("XY_Plane008"), [""])
sketch12.MapMode = "FlatFace"
sketch12.AttachmentOffset = App.Placement(Vector(0, 0, -1.9), App.Rotation())
sketch12.addGeometry([
    Part.LineSegment(Vector(1.6, -0.9, 0), Vector(1.6, -1.6, 0)),
    Part.LineSegment(Vector(1.6, -1.6, 0), Vector(0.9, -1.6, 0)),
    Part.LineSegment(Vector(0.9, -1.6, 0), Vector(0.9, -0.9, 0)),
    Part.LineSegment(Vector(0.9, -0.9, 0), Vector(1.6, -0.9, 0)),
], False)
sketch12.addConstraint([
    Sketcher.Constraint("Coincident", 0, 2, 1, 1),
    Sketcher.Constraint("Coincident", 1, 2, 2, 1),
    Sketcher.Constraint("Coincident", 2, 2, 3, 1),
    Sketcher.Constraint("Coincident", 3, 2, 0, 1),
    Sketcher.Constraint("Vertical", 0),
    Sketcher.Constraint("Horizontal", 1),
    Sketcher.Constraint("Vertical", 2),
    Sketcher.Constraint("Horizontal", 3),
    Sketcher.Constraint("Equal", 3, 0),
    Sketcher.Constraint("DistanceX", 1, 2, 1, 1, 0.64),
    Sketcher.Constraint("DistanceX", -1, 1, 0, 2, 1.59),
    Sketcher.Constraint("DistanceY", 0, 2, -1, 1, 1.59),
])
pad10 = body9.newObject("PartDesign::Pad", "Pad009")
pad10.Profile = sketch12
pad10.Length = 3.6
pad10.Reversed = True
body6.AllowCompound = True
doc.recompute()

boolean4 = body6.newObject("PartDesign::Boolean", "Boolean003")
boolean4.Type = "Fuse"
boolean4.addObjects([body7])
doc.recompute()

boolean5 = body6.newObject("PartDesign::Boolean", "Boolean004")
boolean5.Type = "Fuse"
boolean5.addObjects([body8])
doc.recompute()

boolean6 = body6.newObject("PartDesign::Boolean", "Boolean005")
boolean6.Type = "Fuse"
boolean6.addObjects([body9])

# Sketch on XY plane
sketch13 = body6.newObject("Sketcher::SketchObject", "Sketch012")
sketch13.AttachmentSupport = (doc.getObject("XY_Plane005"), [""])
sketch13.MapMode = "FlatFace"
sketch13.AttachmentOffset = App.Placement(Vector(0, 0, -5.5), App.Rotation())
sketch13.addGeometry([
    Part.LineSegment(Vector(-0.9, 1.6, 0), Vector(-0.9, 0.9, 0)),  # 0
    Part.LineSegment(Vector(-0.9, 0.9, 0), Vector(-1.6, 0.9, 0)),  # 1
    Part.LineSegment(Vector(-1.6, 0.9, 0), Vector(-1.6, 1.6, 0)),  # 2
    Part.LineSegment(Vector(-1.6, 1.6, 0), Vector(-0.9, 1.6, 0)),  # 3
    Part.LineSegment(Vector(-0.9, -0.9, 0), Vector(-0.9, -1.6, 0)),  # 4
    Part.LineSegment(Vector(-0.9, -1.6, 0), Vector(-1.6, -1.6, 0)),  # 5
    Part.LineSegment(Vector(-1.6, -1.6, 0), Vector(-1.6, -0.9, 0)),  # 6
    Part.LineSegment(Vector(-1.6, -0.9, 0), Vector(-0.9, -0.9, 0)),  # 7
    Part.LineSegment(Vector(1.6, -0.9, 0), Vector(1.6, -1.6, 0)),  # 8
    Part.LineSegment(Vector(1.6, -1.6, 0), Vector(0.9, -1.6, 0)),  # 9
    Part.LineSegment(Vector(0.9, -1.6, 0), Vector(0.9, -0.9, 0)),  # 10
    Part.LineSegment(Vector(0.9, -0.9, 0), Vector(1.6, -0.9, 0)),  # 11
    Part.LineSegment(Vector(1.6, 1.6, 0), Vector(1.6, 0.9, 0)),  # 12
    Part.LineSegment(Vector(1.6, 0.9, 0), Vector(0.9, 0.9, 0)),  # 13
    Part.LineSegment(Vector(0.9, 0.9, 0), Vector(0.9, 1.6, 0)),  # 14
    Part.LineSegment(Vector(0.9, 1.6, 0), Vector(1.6, 1.6, 0)),  # 15
], False)
sketch13.addConstraint([
    Sketcher.Constraint("Coincident", 0, 2, 1, 1),
    Sketcher.Constraint("Coincident", 1, 2, 2, 1),
    Sketcher.Constraint("Coincident", 2, 2, 3, 1),
    Sketcher.Constraint("Coincident", 3, 2, 0, 1),
    Sketcher.Constraint("Coincident", 4, 2, 5, 1),
    Sketcher.Constraint("Coincident", 5, 2, 6, 1),
    Sketcher.Constraint("Coincident", 6, 2, 7, 1),
    Sketcher.Constraint("Coincident", 7, 2, 4, 1),
    Sketcher.Constraint("Coincident", 8, 2, 9, 1),
    Sketcher.Constraint("Coincident", 9, 2, 10, 1),
    Sketcher.Constraint("Coincident", 10, 2, 11, 1),
    Sketcher.Constraint("Coincident", 11, 2, 8, 1),
    Sketcher.Constraint("Coincident", 12, 2, 13, 1),
    Sketcher.Constraint("Coincident", 13, 2, 14, 1),
    Sketcher.Constraint("Coincident", 14, 2, 15, 1),
    Sketcher.Constraint("Coincident", 15, 2, 12, 1),
    Sketcher.Constraint("Vertical", 0),
    Sketcher.Constraint("Horizontal", 1),
    Sketcher.Constraint("Vertical", 2),
    Sketcher.Constraint("Horizontal", 3),
    Sketcher.Constraint("Vertical", 4),
    Sketcher.Constraint("Horizontal", 5),
    Sketcher.Constraint("Vertical", 6),
    Sketcher.Constraint("Horizontal", 7),
    Sketcher.Constraint("Vertical", 8),
    Sketcher.Constraint("Horizontal", 9),
    Sketcher.Constraint("Vertical", 10),
    Sketcher.Constraint("Horizontal", 11),
    Sketcher.Constraint("Vertical", 12),
    Sketcher.Constraint("Horizontal", 13),
    Sketcher.Constraint("Vertical", 14),
    Sketcher.Constraint("Horizontal", 15),
    Sketcher.Constraint("Symmetric", 2, 2, 8, 2, -1, 1),
    Sketcher.Constraint("Symmetric", 0, 2, 10, 2, -1, 1),
    Sketcher.Constraint("Symmetric", 6, 2, 12, 2, -1, 1),
    Sketcher.Constraint("Symmetric", 4, 2, 14, 2, -1, 1),
    Sketcher.Constraint("Symmetric", 5, 2, 8, 2, -2),
    Sketcher.Constraint("Symmetric", 7, 2, 10, 2, -2),
    Sketcher.Constraint("Equal", 15, 0),
    Sketcher.Constraint("DistanceX", 1, 2, 1, 1, 0.64),
    Sketcher.Constraint("DistanceY", 6, 2, 1, 2, 1.9),
    Sketcher.Constraint("DistanceX", 4, 2, 9, 2, 1.9),
])
pad11 = body6.newObject("PartDesign::Pad", "Pad010")
pad11.Profile = sketch13
pad11.Length = 0.5
pad11.Reversed = True
pad11.TaperAngle = -10

doc.recompute()
